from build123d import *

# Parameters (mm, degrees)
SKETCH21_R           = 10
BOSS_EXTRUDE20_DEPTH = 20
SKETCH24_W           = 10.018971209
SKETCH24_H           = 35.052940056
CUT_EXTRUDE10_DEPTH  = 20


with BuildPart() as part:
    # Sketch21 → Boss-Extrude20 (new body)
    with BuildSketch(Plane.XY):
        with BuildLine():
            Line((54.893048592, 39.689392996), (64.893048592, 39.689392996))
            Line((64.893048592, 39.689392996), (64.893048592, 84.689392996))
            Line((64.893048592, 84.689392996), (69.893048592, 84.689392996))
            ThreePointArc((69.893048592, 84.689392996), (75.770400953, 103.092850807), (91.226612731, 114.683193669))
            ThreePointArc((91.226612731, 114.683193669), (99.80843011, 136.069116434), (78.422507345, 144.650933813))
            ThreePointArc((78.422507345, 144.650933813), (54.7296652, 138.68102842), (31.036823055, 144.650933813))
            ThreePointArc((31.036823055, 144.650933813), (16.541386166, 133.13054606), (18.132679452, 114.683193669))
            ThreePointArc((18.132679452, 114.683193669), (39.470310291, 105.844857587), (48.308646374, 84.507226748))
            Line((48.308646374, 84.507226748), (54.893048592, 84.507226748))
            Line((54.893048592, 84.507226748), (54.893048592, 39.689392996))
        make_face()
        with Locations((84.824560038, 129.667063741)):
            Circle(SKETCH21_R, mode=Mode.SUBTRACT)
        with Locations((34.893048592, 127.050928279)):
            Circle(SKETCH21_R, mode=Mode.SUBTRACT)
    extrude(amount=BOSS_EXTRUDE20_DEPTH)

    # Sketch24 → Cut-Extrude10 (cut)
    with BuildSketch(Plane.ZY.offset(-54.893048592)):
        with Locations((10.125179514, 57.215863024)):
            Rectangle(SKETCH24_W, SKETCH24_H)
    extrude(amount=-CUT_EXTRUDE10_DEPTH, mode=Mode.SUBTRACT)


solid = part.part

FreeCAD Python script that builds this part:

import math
import FreeCAD as App
import Part
import Sketcher

V = App.Vector

doc = App.newDocument("Part")
params = doc.addObject("Spreadsheet::Sheet", "Params")
for row, (alias, value) in enumerate([
    ("sketch1_diameter", "20 mm"),
    ("sketch1_radius", "50 mm"),
    ("sketch1_width", "10 mm"),
    ("sketch1_width2", "5 mm"),
    ("sketch1_height", "45 mm"),
    ("pad1_length", "20 mm"),
    ("pocket1_length", "20 mm"),
], start=1):
    params.set(f"A{row}", alias)
    params.set(f"B{row}", "=" + value)
    params.setAlias(f"B{row}", alias)

body = doc.addObject("PartDesign::Body", "Body")

# Sketch on XY plane
sketch1 = body.newObject("Sketcher::SketchObject", "Sketch")
sketch1.AttachmentSupport = (doc.getObject("XY_Plane"), [""])
sketch1.MapMode = "FlatFace"
sketch1.addGeometry(Part.LineSegment(V(55, 40, 0), V(65, 40, 0)), False)
sketch1.addGeometry(Part.LineSegment(V(65, 40, 0), V(65, 85, 0)), False)
sketch1.addGeometry(Part.LineSegment(V(65, 85, 0), V(70, 85, 0)), False)
sketch1.addGeometry(Part.ArcOfCircle(Part.Circle(V(102, 85, 0), V(0, 0, 1), 32), math.radians(109), math.radians(180)), False)
sketch1.addGeometry(Part.ArcOfCircle(Part.Circle(V(85, 130, 0), V(0, 0, 1), 16), math.radians(-67), math.radians(113)), False)
sketch1.addGeometry(Part.ArcOfCircle(Part.Circle(V(55, 189, 0), V(0, 0, 1), 50), math.radians(-118), math.radians(-62)), False)
sketch1.addGeometry(Part.ArcOfCircle(Part.Circle(V(35, 125, 0), V(0, 0, 1), 20), math.radians(100), math.radians(213)), False)
sketch1.addGeometry(Part.ArcOfCircle(Part.Circle(V(18, 85, 0), V(0, 0, 1), 30), math.radians(0), math.radians(90)), False)
sketch1.addGeometry(Part.LineSegment(V(48, 85, 0), V(55, 85, 0)), False)
sketch1.addGeometry(Part.LineSegment(V(55, 85, 0), V(55, 40, 0)), False)
sketch1.addGeometry(Part.Circle(V(35, 127, 0), V(0, 0, 1), 10), False)
sketch1.addGeometry(Part.Circle(V(85, 130, 0), V(0, 0, 1), 10), False)
sketch1.addConstraint(Sketcher.Constraint("Coincident", 0, 2, 1, 1))
sketch1.addConstraint(Sketcher.Constraint("Coincident", 1, 2, 2, 1))
sketch1.addConstraint(Sketcher.Constraint("Coincident", 2, 2, 3, 2))
sketch1.addConstraint(Sketcher.Constraint("Coincident", 3, 1, 4, 1))
sketch1.addConstraint(Sketcher.Constraint("Coincident", 4, 2, 5, 2))
sketch1.addConstraint(Sketcher.Constraint("Coincident", 5, 1, 6, 1))
sketch1.addConstraint(Sketcher.Constraint("Coincident", 6, 2, 7, 2))
sketch1.addConstraint(Sketcher.Constraint("Coincident", 7, 1, 8, 1))
sketch1.addConstraint(Sketcher.Constraint("Coincident", 8, 2, 9, 1))
sketch1.addConstraint(Sketcher.Constraint("Coincident", 9, 2, 0, 1))
sketch1.addConstraint(Sketcher.Constraint("Horizontal", 0))
sketch1.addConstraint(Sketcher.Constraint("Vertical", 1))
sketch1.addConstraint(Sketcher.Constraint("Horizontal", 2))
sketch1.addConstraint(Sketcher.Constraint("Horizontal", 8))
sketch1.addConstraint(Sketcher.Constraint("Vertical", 9))
sketch1.addConstraint(Sketcher.Constraint("Coincident", 11, 3, 4, 3))
sketch1.addConstraint(Sketcher.Constraint("Equal", 10, 11))
sketch1.addConstraint(Sketcher.Constraint("Horizontal", 3, 3, 1, 2))
sketch1.addConstraint(Sketcher.Constraint("Horizontal", 4, 2, 5, 1))
sketch1.addConstraint(Sketcher.Constraint("Horizontal", 3, 1, 6, 2))
sketch1.addConstraint(Sketcher.Constraint("Vertical", 7, 3, 6, 2))
sketch1.addConstraint(Sketcher.Constraint("Diameter", 10, 20.0))
sketch1.addConstraint(Sketcher.Constraint("Radius", 5, 50.0))
sketch1.addConstraint(Sketcher.Constraint("DistanceX", 0, 1, 0, 2, 10.0))
sketch1.addConstraint(Sketcher.Constraint("DistanceX", 2, 1, 2, 2, 5.0))
sketch1.addConstraint(Sketcher.Constraint("DistanceY", 1, 1, 1, 2, 45.0))
sketch1.addConstraint(Sketcher.Constraint("Radius", 4, 16.294252))
sketch1.addConstraint(Sketcher.Constraint("Radius", 3, 31.751587))
sketch1.addConstraint(Sketcher.Constraint("Radius", 6, 19.574213))
sketch1.addConstraint(Sketcher.Constraint("Radius", 7, 30.175967))
sketch1.addConstraint(Sketcher.Constraint("DistanceY", 7, 3, 5, 3, 104.173802))
sketch1.addConstraint(Sketcher.Constraint("DistanceY", 7, 3, 10, 3, 42.543702))
sketch1.addConstraint(Sketcher.Constraint("DistanceY", 3, 3, 3, 1, 29.993801))
sketch1.addConstraint(Sketcher.Constraint("DistanceX", 8, 1, 8, 2, 6.584402))
sketch1.addConstraint(Sketcher.Constraint("DistanceY", 9, 2, 9, 1, 44.817834))
sketch1.addConstraint(Sketcher.Constraint("DistanceX", -1, 1, 4, 3, 84.82456))
sketch1.addConstraint(Sketcher.Constraint("DistanceY", -1, 1, 5, 3, 188.681028))
sketch1.addConstraint(Sketcher.Constraint("DistanceY", -1, 1, 6, 3, 125.389069))
sketch1.addConstraint(Sketcher.Constraint("DistanceX", -1, 1, 7, 3, 18.132679))
sketch1.addConstraint(Sketcher.Constraint("DistanceX", -1, 1, 10, 3, 34.893049))
sketch1.setExpression("Constraints[21]", "Params.sketch1_diameter")
sketch1.setExpression("Constraints[22]", "Params.sketch1_radius")
sketch1.setExpression("Constraints[23]", "Params.sketch1_width")
sketch1.setExpression("Constraints[24]", "Params.sketch1_width2")
sketch1.setExpression("Constraints[25]", "Params.sketch1_height")
pad1 = body.newObject("PartDesign::Pad", "Pad")
pad1.Profile = sketch1
pad1.setExpression("Length", "Params.pad1_length")

# Sketch on YZ plane
sketch2 = body.newObject("Sketcher::SketchObject", "Sketch001")
sketch2.AttachmentSupport = (doc.getObject("YZ_Plane"), [""])
sketch2.MapMode = "FlatFace"
sketch2.AttachmentOffset = App.Placement(V(0, 0, 54.893049), App.Rotation())
sketch2.addGeometry(Part.LineSegment(V(75, 5, 0), V(40, 5, 0)), False)
sketch2.addGeometry(Part.LineSegment(V(40, 5, 0), V(40, 15, 0)), False)
sketch2.addGeometry(Part.LineSegment(V(40, 15, 0), V(75, 15, 0)), False)
sketch2.addGeometry(Part.LineSegment(V(75, 15, 0), V(75, 5, 0)), False)
sketch2.addConstraint(Sketcher.Constraint("Coincident", 0, 2, 1, 1))
sketch2.addConstraint(Sketcher.Constraint("Coincident", 1, 2, 2, 1))
sketch2.addConstraint(Sketcher.Constraint("Coincident", 2, 2, 3, 1))
sketch2.addConstraint(Sketcher.Constraint("Coincident", 3, 2, 0, 1))
sketch2.addConstraint(Sketcher.Constraint("Horizontal", 0))
sketch2.addConstraint(Sketcher.Constraint("Vertical", 1))
sketch2.addConstraint(Sketcher.Constraint("Horizontal", 2))
sketch2.addConstraint(Sketcher.Constraint("Vertical", 3))
sketch2.addConstraint(Sketcher.Constraint("DistanceX", 0, 2, 0, 1, 35.05294))
sketch2.addConstraint(Sketcher.Constraint("DistanceY", 1, 1, 1, 2, 10.018971))
sketch2.addConstraint(Sketcher.Constraint("DistanceX", -1, 1, 0, 2, 39.689393))
sketch2.addConstraint(Sketcher.Constraint("DistanceY", -1, 1, 0, 2, 5.115694))
pocket1 = body.newObject("PartDesign::Pocket", "Pocket")
pocket1.Profile = sketch2
pocket1.setExpression("Length", "Params.pocket1_length")
pocket1.Reversed = True

doc.recompute()
